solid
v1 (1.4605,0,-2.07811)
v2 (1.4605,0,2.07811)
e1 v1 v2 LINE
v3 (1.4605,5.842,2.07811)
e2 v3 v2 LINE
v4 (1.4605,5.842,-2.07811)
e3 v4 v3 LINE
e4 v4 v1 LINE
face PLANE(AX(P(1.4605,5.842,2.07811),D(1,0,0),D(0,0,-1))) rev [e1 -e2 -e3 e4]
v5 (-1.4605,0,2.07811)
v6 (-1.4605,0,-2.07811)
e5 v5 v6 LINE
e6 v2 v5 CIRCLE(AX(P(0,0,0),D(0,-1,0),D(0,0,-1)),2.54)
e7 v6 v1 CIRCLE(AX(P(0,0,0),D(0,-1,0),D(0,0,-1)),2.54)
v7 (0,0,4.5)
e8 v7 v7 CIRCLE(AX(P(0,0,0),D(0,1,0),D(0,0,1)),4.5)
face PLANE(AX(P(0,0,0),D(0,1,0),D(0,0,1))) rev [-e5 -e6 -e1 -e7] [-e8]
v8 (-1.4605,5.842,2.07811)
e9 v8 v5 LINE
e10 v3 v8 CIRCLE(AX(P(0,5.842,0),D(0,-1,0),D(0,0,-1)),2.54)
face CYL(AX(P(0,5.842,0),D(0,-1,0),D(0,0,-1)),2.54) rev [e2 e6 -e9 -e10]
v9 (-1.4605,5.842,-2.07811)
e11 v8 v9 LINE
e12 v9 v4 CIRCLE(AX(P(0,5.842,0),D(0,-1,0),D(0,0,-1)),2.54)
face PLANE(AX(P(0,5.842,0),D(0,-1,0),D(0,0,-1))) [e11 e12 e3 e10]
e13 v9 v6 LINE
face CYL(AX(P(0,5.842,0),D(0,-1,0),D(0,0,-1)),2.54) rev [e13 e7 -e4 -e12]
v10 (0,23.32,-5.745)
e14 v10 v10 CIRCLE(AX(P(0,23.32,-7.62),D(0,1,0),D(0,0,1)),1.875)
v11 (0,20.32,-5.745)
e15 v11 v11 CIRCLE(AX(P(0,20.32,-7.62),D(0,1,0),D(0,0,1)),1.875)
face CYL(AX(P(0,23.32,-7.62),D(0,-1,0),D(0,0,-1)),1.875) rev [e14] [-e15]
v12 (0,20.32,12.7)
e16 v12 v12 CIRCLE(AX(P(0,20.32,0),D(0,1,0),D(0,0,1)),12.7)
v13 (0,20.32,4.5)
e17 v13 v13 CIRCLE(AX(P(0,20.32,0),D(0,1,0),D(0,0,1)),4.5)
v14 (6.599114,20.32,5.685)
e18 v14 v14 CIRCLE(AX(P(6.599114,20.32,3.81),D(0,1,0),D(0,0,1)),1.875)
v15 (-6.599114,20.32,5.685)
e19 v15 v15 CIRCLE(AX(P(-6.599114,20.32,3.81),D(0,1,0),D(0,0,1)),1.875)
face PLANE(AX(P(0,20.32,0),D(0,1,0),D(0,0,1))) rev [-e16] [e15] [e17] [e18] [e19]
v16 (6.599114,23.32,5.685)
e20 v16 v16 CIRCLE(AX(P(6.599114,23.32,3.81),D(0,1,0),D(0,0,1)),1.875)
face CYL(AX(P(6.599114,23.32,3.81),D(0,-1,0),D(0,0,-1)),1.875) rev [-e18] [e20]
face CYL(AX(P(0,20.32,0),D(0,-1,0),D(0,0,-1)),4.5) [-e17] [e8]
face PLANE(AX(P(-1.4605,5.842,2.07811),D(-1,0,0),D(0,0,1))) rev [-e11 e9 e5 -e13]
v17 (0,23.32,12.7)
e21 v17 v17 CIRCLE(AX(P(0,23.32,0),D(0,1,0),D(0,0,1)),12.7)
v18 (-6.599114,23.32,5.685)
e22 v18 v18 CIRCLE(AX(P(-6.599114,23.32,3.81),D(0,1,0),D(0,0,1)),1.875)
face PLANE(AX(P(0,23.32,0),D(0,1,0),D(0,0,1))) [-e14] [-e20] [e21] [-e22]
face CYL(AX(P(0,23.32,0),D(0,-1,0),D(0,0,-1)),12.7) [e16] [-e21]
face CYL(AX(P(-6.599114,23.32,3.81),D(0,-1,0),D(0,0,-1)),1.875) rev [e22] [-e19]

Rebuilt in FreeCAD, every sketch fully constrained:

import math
import FreeCAD as App
import Part
import Sketcher

V = App.Vector
Q = App.Units.Quantity

doc = App.newDocument("Part")
body = doc.addObject("PartDesign::Body", "Body")

# Sketch on XZ plane
sketch1 = doc.addObject("Sketcher::SketchObject", "Sketch")
body.addObject(sketch1)
sketch1.AttachmentSupport = (doc.XZ_Plane, [""])
sketch1.MapMode = "FlatFace"
sketch1.addGeometry(Part.Circle(V(0, 0, 0), V(0, 0, 1), 4.5), False)
sketch1.addConstraint([
    Sketcher.Constraint("Coincident", 0, 3, -1, 1),
    Sketcher.Constraint("Diameter", 0, 9.0),
])
pad1 = doc.addObject("PartDesign::Pad", "Pad")
body.addObject(pad1)
pad1.Profile = sketch1
pad1.Length = Q("0.8 in")
pad1.Reversed = True

# Sketch on XZ plane
sketch2 = doc.addObject("Sketcher::SketchObject", "Sketch001")
body.addObject(sketch2)
sketch2.AttachmentSupport = (doc.XZ_Plane, [""])
sketch2.MapMode = "FlatFace"
sketch2.AttachmentOffset = App.Placement(V(0, 0, -0.8 * 25.4), App.Rotation())
sketch2.addGeometry([
    Part.Circle(V(0, 0, 0), V(0, 0, 1), 12.7),
    Part.Circle(V(-6.6, 3.8, 0), V(0, 0, 1), 1.9),
    Part.Circle(V(6.6, 3.8, 0), V(0, 0, 1), 1.9),
    Part.Circle(V(0, -7.6, 0), V(0, 0, 1), 1.9),
], False)
sketch2.addConstraint([
    Sketcher.Constraint("Coincident", 0, 3, -1, 1),
    Sketcher.Constraint("Equal", 1, 2),
    Sketcher.Constraint("Equal", 2, 3),
    Sketcher.Constraint("Symmetric", 1, 3, 2, 3, -2),
    Sketcher.Constraint("PointOnObject", 3, 3, -2),
    Sketcher.Constraint("Diameter", 0, Q("1 in")),
    Sketcher.Constraint("DistanceY", 3, 3, -1, 1, Q("0.3 in")),
    Sketcher.Constraint("Diameter", 1, 3.75),
    Sketcher.Constraint("DistanceY", -1, 1, 1, 3, Q("0.15 in")),
    Sketcher.Constraint("DistanceX", 1, 3, -1, 1, 6.599114),
])
pad2 = doc.addObject("PartDesign::Pad", "Pad001")
body.addObject(pad2)
pad2.Profile = sketch2
pad2.Length = 3
pad2.Reversed = True

# Sketch on XZ plane
sketch3 = doc.addObject("Sketcher::SketchObject", "Sketch002")
body.addObject(sketch3)
sketch3.AttachmentSupport = (doc.XZ_Plane, [""])
sketch3.MapMode = "FlatFace"
sketch3.addGeometry([
    Part.LineSegment(V(1.5, -2.1, 0), V(1.5, 2.1, 0)),
    Part.ArcOfCircle(Part.Circle(V(0, 0, 0), V(0, 0, 1), 2.5), math.radians(55), math.radians(125)),
    Part.LineSegment(V(-1.5, 2.1, 0), V(-1.5, -2.1, 0)),
    Part.ArcOfCircle(Part.Circle(V(0, 0, 0), V(0, 0, 1), 2.5), math.radians(-125), math.radians(-55)),
], False)
sketch3.addConstraint([
    Sketcher.Constraint("Coincident", 0, 2, 1, 1),
    Sketcher.Constraint("Coincident", 1, 2, 2, 1),
    Sketcher.Constraint("Coincident", 2, 2, 3, 1),
    Sketcher.Constraint("Coincident", 3, 2, 0, 1),
    Sketcher.Constraint("Vertical", 0),
    Sketcher.Constraint("Vertical", 2),
    Sketcher.Constraint("Coincident", 1, 3, -1, 1),
    Sketcher.Constraint("Coincident", 3, 3, -1, 1),
    Sketcher.Constraint("Equal", 1, 3),
    Sketcher.Constraint("Horizontal", 0, 2, 1, 2),
    Sketcher.Constraint("Radius", 1, Q("0.1 in")),
    Sketcher.Constraint("DistanceX", 1, 2, 0, 2, Q("0.115 in")),
])
pocket1 = doc.addObject("PartDesign::Pocket", "Pocket")
body.addObject(pocket1)
pocket1.Profile = sketch3
pocket1.Length = Q("0.23 in")

doc.recompute()
